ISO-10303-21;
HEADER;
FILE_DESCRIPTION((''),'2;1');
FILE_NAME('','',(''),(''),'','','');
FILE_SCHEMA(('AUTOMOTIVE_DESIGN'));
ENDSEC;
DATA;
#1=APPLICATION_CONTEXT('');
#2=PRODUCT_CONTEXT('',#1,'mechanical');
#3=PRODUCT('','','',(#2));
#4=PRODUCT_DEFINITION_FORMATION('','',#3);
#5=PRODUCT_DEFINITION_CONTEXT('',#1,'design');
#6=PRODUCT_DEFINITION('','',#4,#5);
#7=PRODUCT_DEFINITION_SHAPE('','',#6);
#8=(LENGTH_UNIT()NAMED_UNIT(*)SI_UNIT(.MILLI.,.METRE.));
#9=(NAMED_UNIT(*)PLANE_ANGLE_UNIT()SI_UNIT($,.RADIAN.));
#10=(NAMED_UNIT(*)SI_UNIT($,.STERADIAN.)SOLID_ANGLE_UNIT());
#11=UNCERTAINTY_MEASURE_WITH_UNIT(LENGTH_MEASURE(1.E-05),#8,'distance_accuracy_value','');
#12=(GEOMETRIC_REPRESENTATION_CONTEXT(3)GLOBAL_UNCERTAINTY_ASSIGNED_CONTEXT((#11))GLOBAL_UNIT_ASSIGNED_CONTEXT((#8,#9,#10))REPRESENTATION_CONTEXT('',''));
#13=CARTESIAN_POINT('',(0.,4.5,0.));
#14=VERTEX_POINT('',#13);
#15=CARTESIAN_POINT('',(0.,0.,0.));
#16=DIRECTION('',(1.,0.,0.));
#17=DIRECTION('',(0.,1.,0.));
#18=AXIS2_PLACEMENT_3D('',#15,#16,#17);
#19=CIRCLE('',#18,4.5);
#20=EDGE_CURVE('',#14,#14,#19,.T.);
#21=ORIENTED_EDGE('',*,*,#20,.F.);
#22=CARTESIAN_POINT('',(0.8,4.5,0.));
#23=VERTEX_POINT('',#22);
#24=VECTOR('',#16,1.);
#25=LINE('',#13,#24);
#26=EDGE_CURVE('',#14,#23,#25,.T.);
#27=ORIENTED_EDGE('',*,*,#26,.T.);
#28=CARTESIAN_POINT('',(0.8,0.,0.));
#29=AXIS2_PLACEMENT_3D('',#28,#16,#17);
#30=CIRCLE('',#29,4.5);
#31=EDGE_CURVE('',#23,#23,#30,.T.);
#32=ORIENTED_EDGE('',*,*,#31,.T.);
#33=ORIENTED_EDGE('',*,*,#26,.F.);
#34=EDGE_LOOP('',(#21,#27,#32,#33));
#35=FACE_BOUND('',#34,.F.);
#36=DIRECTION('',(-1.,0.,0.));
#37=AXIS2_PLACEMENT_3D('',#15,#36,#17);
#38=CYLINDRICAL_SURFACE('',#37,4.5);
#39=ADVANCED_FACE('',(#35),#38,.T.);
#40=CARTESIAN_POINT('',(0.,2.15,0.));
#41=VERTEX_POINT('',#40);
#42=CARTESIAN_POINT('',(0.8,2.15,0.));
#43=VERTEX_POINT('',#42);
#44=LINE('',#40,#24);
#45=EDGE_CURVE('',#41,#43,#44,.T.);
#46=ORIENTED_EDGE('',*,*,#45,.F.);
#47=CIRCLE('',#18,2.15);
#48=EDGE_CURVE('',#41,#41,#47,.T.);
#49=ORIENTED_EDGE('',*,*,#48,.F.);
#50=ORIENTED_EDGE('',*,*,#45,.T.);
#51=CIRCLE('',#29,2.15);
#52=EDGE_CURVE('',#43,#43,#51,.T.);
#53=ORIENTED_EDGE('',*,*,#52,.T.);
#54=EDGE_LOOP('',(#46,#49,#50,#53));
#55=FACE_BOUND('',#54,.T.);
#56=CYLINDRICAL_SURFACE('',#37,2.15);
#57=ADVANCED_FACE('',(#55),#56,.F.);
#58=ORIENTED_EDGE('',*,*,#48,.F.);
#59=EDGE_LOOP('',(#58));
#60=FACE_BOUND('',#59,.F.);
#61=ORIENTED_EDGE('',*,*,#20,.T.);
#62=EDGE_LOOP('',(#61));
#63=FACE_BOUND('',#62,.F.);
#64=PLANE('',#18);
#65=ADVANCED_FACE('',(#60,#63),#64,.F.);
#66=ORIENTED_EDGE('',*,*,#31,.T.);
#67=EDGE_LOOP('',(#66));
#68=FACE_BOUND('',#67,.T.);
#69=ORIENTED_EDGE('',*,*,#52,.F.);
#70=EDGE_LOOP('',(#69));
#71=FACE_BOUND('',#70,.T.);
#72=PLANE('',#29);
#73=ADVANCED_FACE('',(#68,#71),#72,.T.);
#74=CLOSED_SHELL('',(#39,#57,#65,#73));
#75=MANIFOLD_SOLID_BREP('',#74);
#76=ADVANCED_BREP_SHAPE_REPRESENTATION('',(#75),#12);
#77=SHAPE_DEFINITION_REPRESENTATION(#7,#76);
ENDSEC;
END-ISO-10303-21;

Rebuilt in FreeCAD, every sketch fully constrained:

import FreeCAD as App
import Part
import Sketcher
from FreeCAD import Vector

doc = App.newDocument("Part")
body = doc.addObject("PartDesign::Body", "Body")

sketch1 = body.newObject("Sketcher::SketchObject", "Sketch")
sketch1.AttachmentSupport = (doc.getObject("YZ_Plane"), [""])
sketch1.MapMode = "FlatFace"
sketch1.addGeometry([
    Part.Circle(Vector(0, 0, 0), Vector(0, 0, 1), 4.5),
    Part.Circle(Vector(0, 0, 0), Vector(0, 0, 1), 2.1),
], False)
sketch1.addConstraint([
    Sketcher.Constraint("Coincident", 0, 3, -1, 1),
    Sketcher.Constraint("Coincident", 1, 3, -1, 1),
    Sketcher.Constraint("Diameter", 0, 9.0),
    Sketcher.Constraint("Diameter", 1, 4.3),
])
pad1 = body.newObject("PartDesign::Pad", "Pad")
pad1.Profile = sketch1
pad1.Length = 0.8

doc.recompute()
